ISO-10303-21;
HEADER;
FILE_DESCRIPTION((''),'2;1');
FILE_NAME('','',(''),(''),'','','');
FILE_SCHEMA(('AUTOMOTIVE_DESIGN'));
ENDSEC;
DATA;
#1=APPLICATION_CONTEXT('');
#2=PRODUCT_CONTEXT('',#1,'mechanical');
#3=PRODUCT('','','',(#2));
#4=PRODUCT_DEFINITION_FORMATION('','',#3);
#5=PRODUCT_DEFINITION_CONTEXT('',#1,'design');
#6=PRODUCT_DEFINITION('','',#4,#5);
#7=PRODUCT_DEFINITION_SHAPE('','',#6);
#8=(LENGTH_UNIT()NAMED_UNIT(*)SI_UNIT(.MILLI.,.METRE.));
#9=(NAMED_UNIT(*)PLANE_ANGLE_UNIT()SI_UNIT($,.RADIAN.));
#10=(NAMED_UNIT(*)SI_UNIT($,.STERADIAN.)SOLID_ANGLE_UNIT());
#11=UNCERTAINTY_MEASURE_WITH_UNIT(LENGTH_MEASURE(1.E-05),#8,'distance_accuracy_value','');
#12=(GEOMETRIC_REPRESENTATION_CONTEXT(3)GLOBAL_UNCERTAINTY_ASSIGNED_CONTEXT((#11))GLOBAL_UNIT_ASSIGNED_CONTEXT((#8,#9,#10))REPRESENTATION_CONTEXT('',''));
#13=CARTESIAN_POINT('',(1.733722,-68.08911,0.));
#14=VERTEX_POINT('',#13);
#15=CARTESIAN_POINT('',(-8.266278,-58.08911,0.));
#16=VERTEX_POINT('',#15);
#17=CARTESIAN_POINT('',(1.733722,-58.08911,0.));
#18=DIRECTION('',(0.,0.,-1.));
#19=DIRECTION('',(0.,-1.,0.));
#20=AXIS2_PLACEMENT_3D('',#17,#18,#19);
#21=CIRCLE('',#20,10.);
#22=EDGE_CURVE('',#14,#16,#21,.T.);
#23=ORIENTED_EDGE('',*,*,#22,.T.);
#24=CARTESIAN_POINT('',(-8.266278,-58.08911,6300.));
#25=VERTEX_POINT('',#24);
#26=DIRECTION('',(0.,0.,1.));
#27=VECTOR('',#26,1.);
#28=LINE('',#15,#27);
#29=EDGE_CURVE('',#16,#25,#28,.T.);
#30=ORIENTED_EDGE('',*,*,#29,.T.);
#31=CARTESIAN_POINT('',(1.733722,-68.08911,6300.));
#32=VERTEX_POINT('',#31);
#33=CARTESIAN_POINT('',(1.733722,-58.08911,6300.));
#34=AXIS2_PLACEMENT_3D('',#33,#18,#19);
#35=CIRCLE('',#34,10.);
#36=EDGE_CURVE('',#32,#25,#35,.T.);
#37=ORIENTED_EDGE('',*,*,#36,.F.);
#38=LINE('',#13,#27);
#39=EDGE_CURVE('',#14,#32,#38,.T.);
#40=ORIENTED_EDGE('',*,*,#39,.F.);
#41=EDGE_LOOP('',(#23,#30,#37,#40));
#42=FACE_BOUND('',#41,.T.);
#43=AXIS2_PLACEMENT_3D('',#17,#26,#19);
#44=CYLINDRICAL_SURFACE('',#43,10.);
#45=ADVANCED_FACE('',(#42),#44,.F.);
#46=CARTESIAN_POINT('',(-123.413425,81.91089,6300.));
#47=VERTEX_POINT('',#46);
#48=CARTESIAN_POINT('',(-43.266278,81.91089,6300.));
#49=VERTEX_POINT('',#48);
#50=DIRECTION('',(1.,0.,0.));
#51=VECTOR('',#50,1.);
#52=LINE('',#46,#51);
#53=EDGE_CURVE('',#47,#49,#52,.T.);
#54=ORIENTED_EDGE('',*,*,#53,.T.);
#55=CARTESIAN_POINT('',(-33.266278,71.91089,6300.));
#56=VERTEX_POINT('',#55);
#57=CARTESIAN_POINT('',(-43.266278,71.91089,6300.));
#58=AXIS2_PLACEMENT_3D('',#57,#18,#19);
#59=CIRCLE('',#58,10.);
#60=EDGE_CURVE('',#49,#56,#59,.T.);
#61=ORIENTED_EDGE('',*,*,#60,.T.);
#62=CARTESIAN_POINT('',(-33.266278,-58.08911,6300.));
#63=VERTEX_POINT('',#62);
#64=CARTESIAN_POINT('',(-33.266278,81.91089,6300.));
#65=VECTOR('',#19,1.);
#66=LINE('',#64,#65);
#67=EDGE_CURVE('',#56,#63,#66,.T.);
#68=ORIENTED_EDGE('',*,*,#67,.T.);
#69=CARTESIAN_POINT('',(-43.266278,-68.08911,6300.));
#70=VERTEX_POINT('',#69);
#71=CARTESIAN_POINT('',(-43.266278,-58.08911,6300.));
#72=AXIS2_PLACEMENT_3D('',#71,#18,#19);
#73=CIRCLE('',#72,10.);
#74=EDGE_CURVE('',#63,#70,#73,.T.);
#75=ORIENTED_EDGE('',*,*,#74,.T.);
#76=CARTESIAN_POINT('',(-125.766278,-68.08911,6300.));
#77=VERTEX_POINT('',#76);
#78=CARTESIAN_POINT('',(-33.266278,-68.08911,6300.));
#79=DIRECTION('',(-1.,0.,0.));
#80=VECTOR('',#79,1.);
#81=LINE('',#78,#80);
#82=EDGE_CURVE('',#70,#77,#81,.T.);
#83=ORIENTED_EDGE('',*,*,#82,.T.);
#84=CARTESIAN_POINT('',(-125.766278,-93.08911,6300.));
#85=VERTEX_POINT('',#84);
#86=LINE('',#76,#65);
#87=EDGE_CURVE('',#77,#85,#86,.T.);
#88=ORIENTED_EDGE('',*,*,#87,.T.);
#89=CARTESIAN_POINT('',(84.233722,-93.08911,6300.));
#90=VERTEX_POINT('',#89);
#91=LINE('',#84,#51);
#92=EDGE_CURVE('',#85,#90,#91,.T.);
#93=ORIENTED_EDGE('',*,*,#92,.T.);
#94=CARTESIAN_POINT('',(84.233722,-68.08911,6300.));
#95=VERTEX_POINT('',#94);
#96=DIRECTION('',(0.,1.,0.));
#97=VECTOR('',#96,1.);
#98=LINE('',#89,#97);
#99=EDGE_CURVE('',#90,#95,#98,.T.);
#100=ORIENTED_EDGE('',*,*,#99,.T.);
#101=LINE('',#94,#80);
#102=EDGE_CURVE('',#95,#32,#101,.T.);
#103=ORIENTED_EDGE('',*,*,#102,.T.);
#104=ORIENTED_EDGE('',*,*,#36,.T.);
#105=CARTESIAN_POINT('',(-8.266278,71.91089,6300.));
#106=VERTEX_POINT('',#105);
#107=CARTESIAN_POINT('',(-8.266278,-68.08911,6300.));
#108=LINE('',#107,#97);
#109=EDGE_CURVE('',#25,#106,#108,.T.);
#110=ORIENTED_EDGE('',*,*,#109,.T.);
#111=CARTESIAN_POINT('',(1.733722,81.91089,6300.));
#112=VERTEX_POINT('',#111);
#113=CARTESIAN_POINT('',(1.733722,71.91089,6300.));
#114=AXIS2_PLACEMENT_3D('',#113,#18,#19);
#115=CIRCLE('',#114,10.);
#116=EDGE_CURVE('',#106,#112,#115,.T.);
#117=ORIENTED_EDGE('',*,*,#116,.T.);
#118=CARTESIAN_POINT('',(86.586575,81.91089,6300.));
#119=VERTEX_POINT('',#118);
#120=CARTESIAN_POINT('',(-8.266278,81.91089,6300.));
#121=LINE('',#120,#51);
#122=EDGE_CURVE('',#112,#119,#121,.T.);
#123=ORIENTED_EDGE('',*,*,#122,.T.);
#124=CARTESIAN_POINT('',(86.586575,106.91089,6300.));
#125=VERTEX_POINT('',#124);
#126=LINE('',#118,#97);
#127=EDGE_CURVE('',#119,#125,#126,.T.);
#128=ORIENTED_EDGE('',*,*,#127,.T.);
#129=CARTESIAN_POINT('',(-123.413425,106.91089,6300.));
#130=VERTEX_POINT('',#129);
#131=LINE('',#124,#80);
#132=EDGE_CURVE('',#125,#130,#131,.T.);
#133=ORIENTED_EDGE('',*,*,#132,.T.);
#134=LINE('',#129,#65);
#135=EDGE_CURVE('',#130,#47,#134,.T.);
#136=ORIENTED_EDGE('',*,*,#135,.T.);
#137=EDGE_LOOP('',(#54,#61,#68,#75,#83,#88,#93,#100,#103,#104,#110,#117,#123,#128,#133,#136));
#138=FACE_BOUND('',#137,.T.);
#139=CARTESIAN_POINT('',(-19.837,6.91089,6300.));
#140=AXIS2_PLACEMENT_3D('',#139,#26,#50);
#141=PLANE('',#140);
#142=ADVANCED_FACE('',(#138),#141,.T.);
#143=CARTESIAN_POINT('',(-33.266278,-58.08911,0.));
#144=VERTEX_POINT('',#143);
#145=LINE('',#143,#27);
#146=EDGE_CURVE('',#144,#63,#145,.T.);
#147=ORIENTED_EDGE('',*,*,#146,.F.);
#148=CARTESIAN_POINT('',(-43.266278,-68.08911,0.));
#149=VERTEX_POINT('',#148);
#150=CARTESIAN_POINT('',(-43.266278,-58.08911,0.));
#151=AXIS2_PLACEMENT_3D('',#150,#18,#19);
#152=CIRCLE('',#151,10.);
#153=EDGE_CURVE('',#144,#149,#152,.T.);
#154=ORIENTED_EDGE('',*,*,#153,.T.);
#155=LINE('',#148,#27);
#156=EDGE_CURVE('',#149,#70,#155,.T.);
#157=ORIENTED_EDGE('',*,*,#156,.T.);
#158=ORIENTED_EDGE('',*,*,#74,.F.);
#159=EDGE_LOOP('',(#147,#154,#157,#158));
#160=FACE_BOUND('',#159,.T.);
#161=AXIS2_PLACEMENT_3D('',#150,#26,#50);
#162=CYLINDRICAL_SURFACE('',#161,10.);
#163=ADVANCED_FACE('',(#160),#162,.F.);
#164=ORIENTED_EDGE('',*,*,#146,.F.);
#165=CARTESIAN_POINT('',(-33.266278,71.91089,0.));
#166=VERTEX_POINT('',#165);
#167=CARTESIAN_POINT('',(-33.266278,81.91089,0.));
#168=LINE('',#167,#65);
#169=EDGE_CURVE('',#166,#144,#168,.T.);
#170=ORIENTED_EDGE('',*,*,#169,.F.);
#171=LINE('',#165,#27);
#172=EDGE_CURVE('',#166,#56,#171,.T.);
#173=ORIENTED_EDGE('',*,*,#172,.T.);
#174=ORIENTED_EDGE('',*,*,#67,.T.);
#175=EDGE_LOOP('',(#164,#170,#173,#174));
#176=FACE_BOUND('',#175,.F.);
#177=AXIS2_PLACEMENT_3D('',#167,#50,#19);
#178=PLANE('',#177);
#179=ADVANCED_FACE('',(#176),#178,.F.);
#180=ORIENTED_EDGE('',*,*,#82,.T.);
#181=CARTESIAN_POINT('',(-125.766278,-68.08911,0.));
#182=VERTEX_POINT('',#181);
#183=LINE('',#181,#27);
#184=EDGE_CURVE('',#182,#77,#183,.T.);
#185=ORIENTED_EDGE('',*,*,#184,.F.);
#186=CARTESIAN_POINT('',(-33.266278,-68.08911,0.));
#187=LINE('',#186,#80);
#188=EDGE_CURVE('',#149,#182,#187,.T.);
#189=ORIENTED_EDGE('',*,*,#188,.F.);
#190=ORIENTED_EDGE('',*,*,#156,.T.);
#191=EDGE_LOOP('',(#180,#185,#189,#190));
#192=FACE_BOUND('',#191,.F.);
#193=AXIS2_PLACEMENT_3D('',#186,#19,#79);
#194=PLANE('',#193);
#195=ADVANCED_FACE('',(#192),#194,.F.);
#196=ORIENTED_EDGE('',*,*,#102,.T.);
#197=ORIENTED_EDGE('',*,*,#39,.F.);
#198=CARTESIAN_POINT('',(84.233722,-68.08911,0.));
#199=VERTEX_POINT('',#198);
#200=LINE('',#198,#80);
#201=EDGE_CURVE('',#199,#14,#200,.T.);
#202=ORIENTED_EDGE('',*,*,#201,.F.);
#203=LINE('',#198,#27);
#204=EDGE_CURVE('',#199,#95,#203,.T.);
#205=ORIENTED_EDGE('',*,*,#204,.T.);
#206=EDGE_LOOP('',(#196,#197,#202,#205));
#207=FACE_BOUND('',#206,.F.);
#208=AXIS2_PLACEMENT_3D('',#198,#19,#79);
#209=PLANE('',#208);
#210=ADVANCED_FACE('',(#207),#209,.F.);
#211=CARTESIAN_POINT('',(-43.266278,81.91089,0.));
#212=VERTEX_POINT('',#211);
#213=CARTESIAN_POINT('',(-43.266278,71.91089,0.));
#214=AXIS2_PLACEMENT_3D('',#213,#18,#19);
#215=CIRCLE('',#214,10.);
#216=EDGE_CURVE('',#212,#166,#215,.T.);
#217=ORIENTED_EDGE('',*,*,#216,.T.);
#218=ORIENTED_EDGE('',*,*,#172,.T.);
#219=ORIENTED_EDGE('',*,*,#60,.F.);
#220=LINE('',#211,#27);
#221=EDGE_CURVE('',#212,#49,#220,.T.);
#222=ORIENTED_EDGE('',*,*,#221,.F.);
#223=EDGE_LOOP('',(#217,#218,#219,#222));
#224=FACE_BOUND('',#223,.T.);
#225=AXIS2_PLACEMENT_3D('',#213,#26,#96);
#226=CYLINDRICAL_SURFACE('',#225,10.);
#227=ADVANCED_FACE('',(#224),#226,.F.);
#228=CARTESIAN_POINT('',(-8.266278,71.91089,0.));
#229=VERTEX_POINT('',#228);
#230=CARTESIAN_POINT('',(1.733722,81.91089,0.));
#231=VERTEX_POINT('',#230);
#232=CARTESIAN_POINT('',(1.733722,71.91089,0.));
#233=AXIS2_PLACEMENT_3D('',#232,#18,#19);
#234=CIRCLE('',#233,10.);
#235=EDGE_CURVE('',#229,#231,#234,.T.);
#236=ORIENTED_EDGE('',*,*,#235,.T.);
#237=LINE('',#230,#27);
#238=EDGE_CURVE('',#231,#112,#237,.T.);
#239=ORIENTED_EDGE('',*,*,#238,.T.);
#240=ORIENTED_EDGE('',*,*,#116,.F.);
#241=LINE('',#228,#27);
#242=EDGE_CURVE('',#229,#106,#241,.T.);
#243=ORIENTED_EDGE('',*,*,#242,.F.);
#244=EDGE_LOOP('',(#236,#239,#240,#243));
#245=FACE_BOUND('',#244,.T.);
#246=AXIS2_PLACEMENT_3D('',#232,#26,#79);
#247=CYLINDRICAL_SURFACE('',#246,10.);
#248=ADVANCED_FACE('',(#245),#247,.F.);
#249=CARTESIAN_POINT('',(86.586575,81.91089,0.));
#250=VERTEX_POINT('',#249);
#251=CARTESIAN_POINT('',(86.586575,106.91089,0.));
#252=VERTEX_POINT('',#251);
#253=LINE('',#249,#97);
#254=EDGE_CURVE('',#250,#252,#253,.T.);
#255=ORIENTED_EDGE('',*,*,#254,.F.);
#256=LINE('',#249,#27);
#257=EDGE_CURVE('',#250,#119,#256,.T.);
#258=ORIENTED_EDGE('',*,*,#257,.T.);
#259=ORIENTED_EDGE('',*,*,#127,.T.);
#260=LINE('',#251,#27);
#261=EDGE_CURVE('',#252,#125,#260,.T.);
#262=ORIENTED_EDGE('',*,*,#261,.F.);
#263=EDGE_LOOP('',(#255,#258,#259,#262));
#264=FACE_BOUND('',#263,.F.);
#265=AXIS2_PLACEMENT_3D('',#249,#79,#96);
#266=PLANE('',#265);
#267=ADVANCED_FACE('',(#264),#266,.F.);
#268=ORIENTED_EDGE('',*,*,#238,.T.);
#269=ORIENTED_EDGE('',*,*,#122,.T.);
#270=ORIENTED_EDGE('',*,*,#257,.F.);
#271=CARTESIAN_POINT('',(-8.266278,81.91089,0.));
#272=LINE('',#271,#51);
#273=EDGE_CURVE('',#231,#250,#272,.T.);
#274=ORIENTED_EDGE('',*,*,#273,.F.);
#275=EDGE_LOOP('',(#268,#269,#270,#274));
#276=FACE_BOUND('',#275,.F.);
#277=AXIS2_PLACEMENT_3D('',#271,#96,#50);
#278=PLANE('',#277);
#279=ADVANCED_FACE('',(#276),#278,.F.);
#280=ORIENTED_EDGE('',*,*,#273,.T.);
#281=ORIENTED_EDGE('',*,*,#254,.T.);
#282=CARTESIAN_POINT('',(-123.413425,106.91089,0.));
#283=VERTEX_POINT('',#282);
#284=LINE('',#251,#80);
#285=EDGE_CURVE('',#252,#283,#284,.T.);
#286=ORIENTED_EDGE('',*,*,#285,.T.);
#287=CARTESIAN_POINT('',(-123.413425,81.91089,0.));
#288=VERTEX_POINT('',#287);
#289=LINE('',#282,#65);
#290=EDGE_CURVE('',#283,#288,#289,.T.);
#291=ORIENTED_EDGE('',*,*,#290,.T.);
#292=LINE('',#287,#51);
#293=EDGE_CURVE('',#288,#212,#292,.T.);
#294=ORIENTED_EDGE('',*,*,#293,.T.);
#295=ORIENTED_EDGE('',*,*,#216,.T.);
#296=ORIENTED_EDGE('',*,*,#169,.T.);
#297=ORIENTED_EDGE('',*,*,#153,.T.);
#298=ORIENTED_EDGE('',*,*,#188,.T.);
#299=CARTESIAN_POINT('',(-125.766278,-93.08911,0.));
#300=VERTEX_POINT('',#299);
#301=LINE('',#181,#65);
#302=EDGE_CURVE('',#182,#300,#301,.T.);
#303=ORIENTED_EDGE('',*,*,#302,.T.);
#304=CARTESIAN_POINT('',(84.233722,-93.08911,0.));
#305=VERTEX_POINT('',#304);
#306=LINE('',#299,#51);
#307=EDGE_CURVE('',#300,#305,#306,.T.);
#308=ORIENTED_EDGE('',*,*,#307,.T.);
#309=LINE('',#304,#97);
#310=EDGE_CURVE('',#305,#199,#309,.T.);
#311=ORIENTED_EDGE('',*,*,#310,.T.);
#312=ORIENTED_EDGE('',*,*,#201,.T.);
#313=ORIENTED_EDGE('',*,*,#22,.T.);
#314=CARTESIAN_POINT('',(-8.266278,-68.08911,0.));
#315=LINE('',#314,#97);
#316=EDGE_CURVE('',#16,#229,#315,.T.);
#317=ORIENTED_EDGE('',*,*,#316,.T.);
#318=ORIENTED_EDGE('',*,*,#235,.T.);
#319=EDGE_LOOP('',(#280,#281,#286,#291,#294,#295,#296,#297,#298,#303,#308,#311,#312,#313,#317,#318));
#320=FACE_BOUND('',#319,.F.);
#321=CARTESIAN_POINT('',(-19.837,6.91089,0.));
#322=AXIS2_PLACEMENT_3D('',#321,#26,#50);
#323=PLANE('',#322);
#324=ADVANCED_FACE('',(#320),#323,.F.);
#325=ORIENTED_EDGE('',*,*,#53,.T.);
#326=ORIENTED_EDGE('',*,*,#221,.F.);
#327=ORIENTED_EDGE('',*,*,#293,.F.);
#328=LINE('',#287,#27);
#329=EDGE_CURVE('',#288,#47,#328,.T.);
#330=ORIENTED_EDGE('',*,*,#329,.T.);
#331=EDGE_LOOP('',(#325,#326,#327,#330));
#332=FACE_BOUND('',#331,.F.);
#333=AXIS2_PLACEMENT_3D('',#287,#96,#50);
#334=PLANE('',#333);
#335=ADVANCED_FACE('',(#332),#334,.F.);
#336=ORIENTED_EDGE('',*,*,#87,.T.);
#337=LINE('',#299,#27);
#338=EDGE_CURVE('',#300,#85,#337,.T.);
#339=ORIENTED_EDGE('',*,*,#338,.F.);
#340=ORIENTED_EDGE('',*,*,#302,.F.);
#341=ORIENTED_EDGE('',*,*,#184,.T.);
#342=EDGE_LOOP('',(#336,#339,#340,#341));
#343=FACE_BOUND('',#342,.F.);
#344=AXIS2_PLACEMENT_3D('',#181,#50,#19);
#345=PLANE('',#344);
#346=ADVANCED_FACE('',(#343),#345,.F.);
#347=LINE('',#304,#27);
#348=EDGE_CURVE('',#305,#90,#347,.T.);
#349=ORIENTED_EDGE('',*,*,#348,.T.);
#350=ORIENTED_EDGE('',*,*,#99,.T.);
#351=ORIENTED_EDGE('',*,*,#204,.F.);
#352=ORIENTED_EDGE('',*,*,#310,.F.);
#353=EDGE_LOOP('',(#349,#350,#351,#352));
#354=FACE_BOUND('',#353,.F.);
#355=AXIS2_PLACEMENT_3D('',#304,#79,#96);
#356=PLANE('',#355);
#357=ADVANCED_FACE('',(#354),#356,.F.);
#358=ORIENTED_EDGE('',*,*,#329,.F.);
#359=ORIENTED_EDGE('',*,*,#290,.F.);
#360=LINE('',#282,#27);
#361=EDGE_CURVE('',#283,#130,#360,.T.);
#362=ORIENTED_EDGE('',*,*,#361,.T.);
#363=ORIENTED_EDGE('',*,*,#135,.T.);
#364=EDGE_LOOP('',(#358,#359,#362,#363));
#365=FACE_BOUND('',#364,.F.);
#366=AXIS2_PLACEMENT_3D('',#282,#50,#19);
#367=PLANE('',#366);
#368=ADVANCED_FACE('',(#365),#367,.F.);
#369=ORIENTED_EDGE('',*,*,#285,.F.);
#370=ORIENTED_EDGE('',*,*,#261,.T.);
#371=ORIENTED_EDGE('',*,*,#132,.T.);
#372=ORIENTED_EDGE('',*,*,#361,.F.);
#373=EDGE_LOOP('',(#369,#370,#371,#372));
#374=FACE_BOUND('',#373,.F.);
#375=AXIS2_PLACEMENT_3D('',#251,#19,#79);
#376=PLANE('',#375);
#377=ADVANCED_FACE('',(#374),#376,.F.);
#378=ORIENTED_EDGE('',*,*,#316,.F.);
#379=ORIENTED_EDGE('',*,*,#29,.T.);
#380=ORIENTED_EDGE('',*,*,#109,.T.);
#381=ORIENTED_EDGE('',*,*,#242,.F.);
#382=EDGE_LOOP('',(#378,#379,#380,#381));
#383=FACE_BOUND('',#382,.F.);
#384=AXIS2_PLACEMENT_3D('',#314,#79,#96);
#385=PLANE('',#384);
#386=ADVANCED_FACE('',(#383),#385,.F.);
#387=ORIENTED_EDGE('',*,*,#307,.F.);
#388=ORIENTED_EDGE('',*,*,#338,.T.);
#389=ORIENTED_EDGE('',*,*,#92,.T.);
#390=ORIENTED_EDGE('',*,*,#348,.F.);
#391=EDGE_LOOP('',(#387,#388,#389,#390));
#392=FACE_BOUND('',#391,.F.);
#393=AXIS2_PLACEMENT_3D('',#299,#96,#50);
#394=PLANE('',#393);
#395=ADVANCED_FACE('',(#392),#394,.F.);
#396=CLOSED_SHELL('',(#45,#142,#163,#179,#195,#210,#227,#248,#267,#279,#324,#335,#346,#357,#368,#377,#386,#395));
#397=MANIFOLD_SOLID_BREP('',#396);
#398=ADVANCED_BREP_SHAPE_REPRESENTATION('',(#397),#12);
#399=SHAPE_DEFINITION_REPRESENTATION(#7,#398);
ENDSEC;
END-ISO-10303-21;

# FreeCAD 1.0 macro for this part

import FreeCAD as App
import Part
import Sketcher


def edges_at(feature, points):
    """Names of the edges that pass closest to the given points."""
    edges = feature.Shape.Edges
    near = lambda p: min(range(len(edges)), key=lambda i: edges[i].distToShape(Part.Vertex(*p))[0])
    return sorted({f"Edge{near(p) + 1}" for p in points})


def add_polygon(sketch, points):
    """Adds a closed chain of lines whose ends are joined by coincident constraints."""
    first, n = sketch.GeometryCount, len(points)
    for a, b in zip(points, points[1:] + points[:1]):
        sketch.addGeometry(Part.LineSegment(App.Vector(*a, 0), App.Vector(*b, 0)), False)
    for i in range(n):
        sketch.addConstraint(Sketcher.Constraint("Coincident", first + i, 2, first + (i + 1) % n, 1))

doc = App.newDocument("Part")
params = doc.addObject("Spreadsheet::Sheet", "Params")
for row, (alias, value) in enumerate([
    ("sketch1_width", "210 mm"),
    ("sketch1_height", "25 mm"),
    ("sketch1_height2", "150 mm"),
    ("sketch1_width2", "92.5 mm"),
    ("pad1_length", "6300 mm"),
    ("fillet_radius", "10 mm"),
], start=1):
    params.set(f"A{row}", alias)
    params.set(f"B{row}", "=" + value)
    params.setAlias(f"B{row}", alias)

body = doc.addObject("PartDesign::Body", "Body")

sketch1 = body.newObject("Sketcher::SketchObject", "Sketch")
sketch1.AttachmentSupport = (doc.getObject("XY_Plane"), [""])
sketch1.MapMode = "FlatFace"
add_polygon(sketch1, [(87, 107), (-123, 107), (-123, 82), (-33, 82), (-33, -68), (-126, -68), (-126, -93), (84, -93), (84, -68), (-8, -68), (-8, 82), (87, 82)])
sketch1.addConstraint(Sketcher.Constraint("Horizontal", 0))
sketch1.addConstraint(Sketcher.Constraint("Vertical", 1))
sketch1.addConstraint(Sketcher.Constraint("Horizontal", 2))
sketch1.addConstraint(Sketcher.Constraint("Vertical", 3))
sketch1.addConstraint(Sketcher.Constraint("Horizontal", 4))
sketch1.addConstraint(Sketcher.Constraint("Vertical", 5))
sketch1.addConstraint(Sketcher.Constraint("Horizontal", 6))
sketch1.addConstraint(Sketcher.Constraint("Vertical", 7))
sketch1.addConstraint(Sketcher.Constraint("Horizontal", 8))
sketch1.addConstraint(Sketcher.Constraint("Vertical", 9))
sketch1.addConstraint(Sketcher.Constraint("Horizontal", 10))
sketch1.addConstraint(Sketcher.Constraint("Vertical", 11))
sketch1.addConstraint(Sketcher.Constraint("Horizontal", 4, 2, 7, 2))
sketch1.addConstraint(Sketcher.Constraint("Horizontal", 2, 2, 9, 2))
sketch1.addConstraint(Sketcher.Constraint("Equal", 0, 6))
sketch1.addConstraint(Sketcher.Constraint("Equal", 4, 8))
sketch1.addConstraint(Sketcher.Constraint("Equal", 1, 5))
sketch1.addConstraint(Sketcher.Constraint("DistanceX", 0, 2, 0, 1, 210.0))
sketch1.addConstraint(Sketcher.Constraint("DistanceY", 1, 2, 1, 1, 25.0))
sketch1.addConstraint(Sketcher.Constraint("DistanceY", 3, 2, 3, 1, 150.0))
sketch1.addConstraint(Sketcher.Constraint("DistanceX", 4, 2, 4, 1, 92.5))
sketch1.addConstraint(Sketcher.Constraint("DistanceX", 2, 1, 2, 2, 90.147147))
sketch1.addConstraint(Sketcher.Constraint("DistanceY", -1, 1, 0, 2, 106.91089))
sketch1.addConstraint(Sketcher.Constraint("DistanceX", 4, 2, -1, 1, 125.766278))
sketch1.setExpression("Constraints[29]", "Params.sketch1_width")
sketch1.setExpression("Constraints[30]", "Params.sketch1_height")
sketch1.setExpression("Constraints[31]", "Params.sketch1_height2")
sketch1.setExpression("Constraints[32]", "Params.sketch1_width2")
pad1 = body.newObject("PartDesign::Pad", "Pad")
pad1.Profile = sketch1
pad1.setExpression("Length", "Params.pad1_length")
doc.recompute()

fillet = body.newObject("PartDesign::Fillet", "Fillet")
fillet.Base = (pad1, edges_at(pad1, [
    (-8.266, 81.911, 3150),
    (-33.266, 81.911, 3150),
    (-33.266, -68.089, 3150),
    (-8.266, -68.089, 3150),
]))
fillet.setExpression("Radius", "Params.fillet_radius")

doc.recompute()
